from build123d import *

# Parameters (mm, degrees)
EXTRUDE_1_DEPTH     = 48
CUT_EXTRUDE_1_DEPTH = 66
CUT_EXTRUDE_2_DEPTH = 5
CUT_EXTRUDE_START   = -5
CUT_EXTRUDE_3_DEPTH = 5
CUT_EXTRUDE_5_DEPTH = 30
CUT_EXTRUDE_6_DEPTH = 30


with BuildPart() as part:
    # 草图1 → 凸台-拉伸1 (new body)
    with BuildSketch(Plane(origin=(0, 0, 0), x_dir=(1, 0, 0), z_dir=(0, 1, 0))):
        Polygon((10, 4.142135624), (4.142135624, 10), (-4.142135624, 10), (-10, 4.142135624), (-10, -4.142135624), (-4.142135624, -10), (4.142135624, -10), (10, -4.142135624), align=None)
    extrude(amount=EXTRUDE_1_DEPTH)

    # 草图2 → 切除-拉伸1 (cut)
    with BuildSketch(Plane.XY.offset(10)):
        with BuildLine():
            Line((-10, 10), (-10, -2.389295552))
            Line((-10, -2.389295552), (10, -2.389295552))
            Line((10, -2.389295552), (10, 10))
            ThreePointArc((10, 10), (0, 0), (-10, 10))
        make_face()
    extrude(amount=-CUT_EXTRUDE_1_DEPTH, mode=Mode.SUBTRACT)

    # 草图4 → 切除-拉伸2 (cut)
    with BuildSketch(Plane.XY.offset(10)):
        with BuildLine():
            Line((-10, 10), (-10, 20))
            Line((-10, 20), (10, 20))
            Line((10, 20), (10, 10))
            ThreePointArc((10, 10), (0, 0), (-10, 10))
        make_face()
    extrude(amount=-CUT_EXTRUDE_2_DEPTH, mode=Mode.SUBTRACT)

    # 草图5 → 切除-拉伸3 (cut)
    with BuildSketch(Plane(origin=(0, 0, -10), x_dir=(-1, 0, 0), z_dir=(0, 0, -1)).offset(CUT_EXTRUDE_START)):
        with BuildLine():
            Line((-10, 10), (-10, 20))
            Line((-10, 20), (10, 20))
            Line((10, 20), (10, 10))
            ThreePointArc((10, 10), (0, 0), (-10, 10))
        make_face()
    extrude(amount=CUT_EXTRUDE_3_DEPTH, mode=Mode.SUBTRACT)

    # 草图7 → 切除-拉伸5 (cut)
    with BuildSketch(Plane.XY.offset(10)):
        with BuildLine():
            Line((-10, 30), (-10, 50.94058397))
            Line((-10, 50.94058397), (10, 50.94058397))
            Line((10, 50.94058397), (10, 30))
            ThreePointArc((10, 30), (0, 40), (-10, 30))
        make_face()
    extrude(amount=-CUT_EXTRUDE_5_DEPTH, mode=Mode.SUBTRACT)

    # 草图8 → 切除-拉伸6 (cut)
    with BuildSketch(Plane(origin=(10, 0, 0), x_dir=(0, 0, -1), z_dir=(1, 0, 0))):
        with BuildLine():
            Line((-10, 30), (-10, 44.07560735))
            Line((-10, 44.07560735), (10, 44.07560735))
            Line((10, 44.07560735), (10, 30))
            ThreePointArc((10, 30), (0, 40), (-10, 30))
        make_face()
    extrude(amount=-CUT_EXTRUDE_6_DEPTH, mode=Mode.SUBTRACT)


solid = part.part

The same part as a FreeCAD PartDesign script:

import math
import FreeCAD as App
import Part
import Sketcher

V = App.Vector

doc = App.newDocument("Part")
params = doc.addObject("Spreadsheet::Sheet", "Params")
for row, (alias, value) in enumerate([
    ("pad1_length", "48 mm"),
    ("sketch2_radius", "10 mm"),
    ("pocket1_length", "66 mm"),
    ("sketch3_radius", "10 mm"),
    ("sketch3_height", "10 mm"),
    ("pocket2_length", "5 mm"),
    ("sketch4_radius", "10 mm"),
    ("sketch4_height", "10 mm"),
    ("pocket3_length", "5 mm"),
    ("sketch5_radius", "10 mm"),
    ("pocket4_length", "30 mm"),
    ("sketch6_radius", "10 mm"),
    ("pocket5_length", "30 mm"),
], start=1):
    params.set(f"A{row}", alias)
    params.set(f"B{row}", "=" + value)
    params.setAlias(f"B{row}", alias)

body = doc.addObject("PartDesign::Body", "Body")

sketch1 = body.newObject("Sketcher::SketchObject", "Sketch")
sketch1.AttachmentSupport = (doc.getObject("XZ_Plane"), [""])
sketch1.MapMode = "FlatFace"
sketch1.addGeometry([
    Part.LineSegment(V(10, -4, 0), V(4, -10, 0)),
    Part.LineSegment(V(4, -10, 0), V(-4, -10, 0)),
    Part.LineSegment(V(-4, -10, 0), V(-10, -4, 0)),
    Part.LineSegment(V(-10, -4, 0), V(-10, 4, 0)),
    Part.LineSegment(V(-10, 4, 0), V(-4, 10, 0)),
    Part.LineSegment(V(-4, 10, 0), V(4, 10, 0)),
    Part.LineSegment(V(4, 10, 0), V(10, 4, 0)),
    Part.LineSegment(V(10, 4, 0), V(10, -4, 0)),
], False)
sketch1.addConstraint([
    Sketcher.Constraint("Coincident", 0, 2, 1, 1),
    Sketcher.Constraint("Coincident", 1, 2, 2, 1),
    Sketcher.Constraint("Coincident", 2, 2, 3, 1),
    Sketcher.Constraint("Coincident", 3, 2, 4, 1),
    Sketcher.Constraint("Coincident", 4, 2, 5, 1),
    Sketcher.Constraint("Coincident", 5, 2, 6, 1),
    Sketcher.Constraint("Coincident", 6, 2, 7, 1),
    Sketcher.Constraint("Coincident", 7, 2, 0, 1),
    Sketcher.Constraint("Horizontal", 1),
    Sketcher.Constraint("Vertical", 3),
    Sketcher.Constraint("Horizontal", 5),
    Sketcher.Constraint("Vertical", 7),
    Sketcher.Constraint("Symmetric", 0, 2, 4, 2, -1, 1),
    Sketcher.Constraint("Symmetric", 2, 2, 6, 2, -1, 1),
    Sketcher.Constraint("Perpendicular", 0, 2),
    Sketcher.Constraint("Perpendicular", 2, 4),
    Sketcher.Constraint("Perpendicular", 4, 6),
    Sketcher.Constraint("Horizontal", 3, 2, 6, 2),
    Sketcher.Constraint("Vertical", 1, 2, 4, 2),
    Sketcher.Constraint("Equal", 5, 3),
    Sketcher.Constraint("DistanceY", 0, 2, -1, 1, 10.0),
    Sketcher.Constraint("DistanceX", 1, 2, 1, 1, 8.284271),
])
pad1 = body.newObject("PartDesign::Pad", "Pad")
pad1.Profile = sketch1
pad1.setExpression("Length", "Params.pad1_length")
pad1.Reversed = True

sketch2 = body.newObject("Sketcher::SketchObject", "Sketch001")
sketch2.AttachmentSupport = (doc.getObject("XY_Plane"), [""])
sketch2.MapMode = "FlatFace"
sketch2.AttachmentOffset = App.Placement(V(0, 0, 10), App.Rotation())
sketch2.addGeometry([
    Part.LineSegment(V(-10, 10, 0), V(-10, -2, 0)),
    Part.LineSegment(V(-10, -2, 0), V(10, -2, 0)),
    Part.LineSegment(V(10, -2, 0), V(10, 10, 0)),
    Part.ArcOfCircle(Part.Circle(V(0, 10, 0), V(0, 0, 1), 10), math.radians(180), math.radians(360)),
], False)
sketch2.addConstraint([
    Sketcher.Constraint("Coincident", 0, 2, 1, 1),
    Sketcher.Constraint("Coincident", 1, 2, 2, 1),
    Sketcher.Constraint("Tangent", 2, 2, 3, 2),
    Sketcher.Constraint("Tangent", 3, 1, 0, 1),
    Sketcher.Constraint("Vertical", 0),
    Sketcher.Constraint("Horizontal", 1),
    Sketcher.Constraint("Vertical", 2),
    Sketcher.Constraint("PointOnObject", 3, 3, -2),
    Sketcher.Constraint("Radius", 3, 10.0),
    Sketcher.Constraint("DistanceY", -1, 1, 3, 3, 10.0),
    Sketcher.Constraint("DistanceY", 0, 2, 0, 1, 12.389296),
])
sketch2.setExpression("Constraints[8]", "Params.sketch2_radius")
pocket1 = body.newObject("PartDesign::Pocket", "Pocket")
pocket1.Profile = sketch2
pocket1.setExpression("Length", "Params.pocket1_length")

sketch3 = body.newObject("Sketcher::SketchObject", "Sketch002")
sketch3.AttachmentSupport = (doc.getObject("XY_Plane"), [""])
sketch3.MapMode = "FlatFace"
sketch3.AttachmentOffset = App.Placement(V(0, 0, 10), App.Rotation())
sketch3.addGeometry([
    Part.LineSegment(V(-10, 20, 0), V(-10, 10, 0)),
    Part.ArcOfCircle(Part.Circle(V(0, 10, 0), V(0, 0, 1), 10), math.radians(180), math.radians(360)),
    Part.LineSegment(V(10, 10, 0), V(10, 20, 0)),
    Part.LineSegment(V(10, 20, 0), V(-10, 20, 0)),
], False)
sketch3.addConstraint([
    Sketcher.Constraint("Tangent", 0, 2, 1, 1),
    Sketcher.Constraint("Tangent", 1, 2, 2, 1),
    Sketcher.Constraint("Coincident", 2, 2, 3, 1),
    Sketcher.Constraint("Coincident", 3, 2, 0, 1),
    Sketcher.Constraint("Vertical", 0),
    Sketcher.Constraint("Vertical", 2),
    Sketcher.Constraint("Horizontal", 3),
    Sketcher.Constraint("PointOnObject", 1, 3, -2),
    Sketcher.Constraint("Radius", 1, 10.0),
    Sketcher.Constraint("DistanceY", 0, 2, 0, 1, 10.0),
    Sketcher.Constraint("DistanceY", -1, 1, 1, 3, 10.0),
])
sketch3.setExpression("Constraints[8]", "Params.sketch3_radius")
sketch3.setExpression("Constraints[9]", "Params.sketch3_height")
pocket2 = body.newObject("PartDesign::Pocket", "Pocket001")
pocket2.Profile = sketch3
pocket2.setExpression("Length", "Params.pocket2_length")

sketch4 = body.newObject("Sketcher::SketchObject", "Sketch003")
sketch4.AttachmentSupport = (doc.getObject("XY_Plane"), [""])
sketch4.MapMode = "FlatFace"
sketch4.AttachmentOffset = App.Placement(V(0, 0, -5), App.Rotation())
sketch4.addGeometry([
    Part.LineSegment(V(10, 20, 0), V(10, 10, 0)),
    Part.ArcOfCircle(Part.Circle(V(0, 10, 0), V(0, 0, 1), 10), math.radians(180), math.radians(360)),
    Part.LineSegment(V(-10, 10, 0), V(-10, 20, 0)),
    Part.LineSegment(V(-10, 20, 0), V(10, 20, 0)),
], False)
sketch4.addConstraint([
    Sketcher.Constraint("Tangent", 0, 2, 1, 2),
    Sketcher.Constraint("Tangent", 1, 1, 2, 1),
    Sketcher.Constraint("Coincident", 2, 2, 3, 1),
    Sketcher.Constraint("Coincident", 3, 2, 0, 1),
    Sketcher.Constraint("Vertical", 0),
    Sketcher.Constraint("Vertical", 2),
    Sketcher.Constraint("Horizontal", 3),
    Sketcher.Constraint("PointOnObject", 1, 3, -2),
    Sketcher.Constraint("Radius", 1, 10.0),
    Sketcher.Constraint("DistanceY", 0, 2, 0, 1, 10.0),
    Sketcher.Constraint("DistanceY", -1, 1, 1, 3, 10.0),
])
sketch4.setExpression("Constraints[8]", "Params.sketch4_radius")
sketch4.setExpression("Constraints[9]", "Params.sketch4_height")
pocket3 = body.newObject("PartDesign::Pocket", "Pocket002")
pocket3.Profile = sketch4
pocket3.setExpression("Length", "Params.pocket3_length")

sketch5 = body.newObject("Sketcher::SketchObject", "Sketch004")
sketch5.AttachmentSupport = (doc.getObject("XY_Plane"), [""])
sketch5.MapMode = "FlatFace"
sketch5.AttachmentOffset = App.Placement(V(0, 0, 10), App.Rotation())
sketch5.addGeometry([
    Part.LineSegment(V(-10, 51, 0), V(-10, 30, 0)),
    Part.ArcOfCircle(Part.Circle(V(0, 30, 0), V(0, 0, 1), 10), math.radians(0), math.radians(180)),
    Part.LineSegment(V(10, 30, 0), V(10, 51, 0)),
    Part.LineSegment(V(10, 51, 0), V(-10, 51, 0)),
], False)
sketch5.addConstraint([
    Sketcher.Constraint("Tangent", 0, 2, 1, 2),
    Sketcher.Constraint("Tangent", 1, 1, 2, 1),
    Sketcher.Constraint("Coincident", 2, 2, 3, 1),
    Sketcher.Constraint("Coincident", 3, 2, 0, 1),
    Sketcher.Constraint("Vertical", 0),
    Sketcher.Constraint("Vertical", 2),
    Sketcher.Constraint("Horizontal", 3),
    Sketcher.Constraint("PointOnObject", 1, 3, -2),
    Sketcher.Constraint("Radius", 1, 10.0),
    Sketcher.Constraint("DistanceY", -1, 1, 1, 3, 30.0),
    Sketcher.Constraint("DistanceY", 0, 2, 0, 1, 20.940584),
])
sketch5.setExpression("Constraints[8]", "Params.sketch5_radius")
pocket4 = body.newObject("PartDesign::Pocket", "Pocket003")
pocket4.Profile = sketch5
pocket4.setExpression("Length", "Params.pocket4_length")

sketch6 = body.newObject("Sketcher::SketchObject", "Sketch005")
sketch6.AttachmentSupport = (doc.getObject("YZ_Plane"), [""])
sketch6.MapMode = "FlatFace"
sketch6.AttachmentOffset = App.Placement(V(0, 0, 10), App.Rotation())
sketch6.addGeometry([
    Part.LineSegment(V(44, 10, 0), V(30, 10, 0)),
    Part.ArcOfCircle(Part.Circle(V(30, 0, 0), V(0, 0, 1), 10), math.radians(-90), math.radians(90)),
    Part.LineSegment(V(30, -10, 0), V(44, -10, 0)),
    Part.LineSegment(V(44, -10, 0), V(44, 10, 0)),
], False)
sketch6.addConstraint([
    Sketcher.Constraint("Tangent", 0, 2, 1, 2),
    Sketcher.Constraint("Tangent", 1, 1, 2, 1),
    Sketcher.Constraint("Coincident", 2, 2, 3, 1),
    Sketcher.Constraint("Coincident", 3, 2, 0, 1),
    Sketcher.Constraint("Horizontal", 0),
    Sketcher.Constraint("Horizontal", 2),
    Sketcher.Constraint("Vertical", 3),
    Sketcher.Constraint("PointOnObject", 1, 3, -1),
    Sketcher.Constraint("Radius", 1, 10.0),
    Sketcher.Constraint("DistanceX", -1, 1, 1, 3, 30.0),
    Sketcher.Constraint("DistanceX", 0, 2, 0, 1, 14.075607),
])
sketch6.setExpression("Constraints[8]", "Params.sketch6_radius")
pocket5 = body.newObject("PartDesign::Pocket", "Pocket004")
pocket5.Profile = sketch6
pocket5.setExpression("Length", "Params.pocket5_length")

doc.recompute()
